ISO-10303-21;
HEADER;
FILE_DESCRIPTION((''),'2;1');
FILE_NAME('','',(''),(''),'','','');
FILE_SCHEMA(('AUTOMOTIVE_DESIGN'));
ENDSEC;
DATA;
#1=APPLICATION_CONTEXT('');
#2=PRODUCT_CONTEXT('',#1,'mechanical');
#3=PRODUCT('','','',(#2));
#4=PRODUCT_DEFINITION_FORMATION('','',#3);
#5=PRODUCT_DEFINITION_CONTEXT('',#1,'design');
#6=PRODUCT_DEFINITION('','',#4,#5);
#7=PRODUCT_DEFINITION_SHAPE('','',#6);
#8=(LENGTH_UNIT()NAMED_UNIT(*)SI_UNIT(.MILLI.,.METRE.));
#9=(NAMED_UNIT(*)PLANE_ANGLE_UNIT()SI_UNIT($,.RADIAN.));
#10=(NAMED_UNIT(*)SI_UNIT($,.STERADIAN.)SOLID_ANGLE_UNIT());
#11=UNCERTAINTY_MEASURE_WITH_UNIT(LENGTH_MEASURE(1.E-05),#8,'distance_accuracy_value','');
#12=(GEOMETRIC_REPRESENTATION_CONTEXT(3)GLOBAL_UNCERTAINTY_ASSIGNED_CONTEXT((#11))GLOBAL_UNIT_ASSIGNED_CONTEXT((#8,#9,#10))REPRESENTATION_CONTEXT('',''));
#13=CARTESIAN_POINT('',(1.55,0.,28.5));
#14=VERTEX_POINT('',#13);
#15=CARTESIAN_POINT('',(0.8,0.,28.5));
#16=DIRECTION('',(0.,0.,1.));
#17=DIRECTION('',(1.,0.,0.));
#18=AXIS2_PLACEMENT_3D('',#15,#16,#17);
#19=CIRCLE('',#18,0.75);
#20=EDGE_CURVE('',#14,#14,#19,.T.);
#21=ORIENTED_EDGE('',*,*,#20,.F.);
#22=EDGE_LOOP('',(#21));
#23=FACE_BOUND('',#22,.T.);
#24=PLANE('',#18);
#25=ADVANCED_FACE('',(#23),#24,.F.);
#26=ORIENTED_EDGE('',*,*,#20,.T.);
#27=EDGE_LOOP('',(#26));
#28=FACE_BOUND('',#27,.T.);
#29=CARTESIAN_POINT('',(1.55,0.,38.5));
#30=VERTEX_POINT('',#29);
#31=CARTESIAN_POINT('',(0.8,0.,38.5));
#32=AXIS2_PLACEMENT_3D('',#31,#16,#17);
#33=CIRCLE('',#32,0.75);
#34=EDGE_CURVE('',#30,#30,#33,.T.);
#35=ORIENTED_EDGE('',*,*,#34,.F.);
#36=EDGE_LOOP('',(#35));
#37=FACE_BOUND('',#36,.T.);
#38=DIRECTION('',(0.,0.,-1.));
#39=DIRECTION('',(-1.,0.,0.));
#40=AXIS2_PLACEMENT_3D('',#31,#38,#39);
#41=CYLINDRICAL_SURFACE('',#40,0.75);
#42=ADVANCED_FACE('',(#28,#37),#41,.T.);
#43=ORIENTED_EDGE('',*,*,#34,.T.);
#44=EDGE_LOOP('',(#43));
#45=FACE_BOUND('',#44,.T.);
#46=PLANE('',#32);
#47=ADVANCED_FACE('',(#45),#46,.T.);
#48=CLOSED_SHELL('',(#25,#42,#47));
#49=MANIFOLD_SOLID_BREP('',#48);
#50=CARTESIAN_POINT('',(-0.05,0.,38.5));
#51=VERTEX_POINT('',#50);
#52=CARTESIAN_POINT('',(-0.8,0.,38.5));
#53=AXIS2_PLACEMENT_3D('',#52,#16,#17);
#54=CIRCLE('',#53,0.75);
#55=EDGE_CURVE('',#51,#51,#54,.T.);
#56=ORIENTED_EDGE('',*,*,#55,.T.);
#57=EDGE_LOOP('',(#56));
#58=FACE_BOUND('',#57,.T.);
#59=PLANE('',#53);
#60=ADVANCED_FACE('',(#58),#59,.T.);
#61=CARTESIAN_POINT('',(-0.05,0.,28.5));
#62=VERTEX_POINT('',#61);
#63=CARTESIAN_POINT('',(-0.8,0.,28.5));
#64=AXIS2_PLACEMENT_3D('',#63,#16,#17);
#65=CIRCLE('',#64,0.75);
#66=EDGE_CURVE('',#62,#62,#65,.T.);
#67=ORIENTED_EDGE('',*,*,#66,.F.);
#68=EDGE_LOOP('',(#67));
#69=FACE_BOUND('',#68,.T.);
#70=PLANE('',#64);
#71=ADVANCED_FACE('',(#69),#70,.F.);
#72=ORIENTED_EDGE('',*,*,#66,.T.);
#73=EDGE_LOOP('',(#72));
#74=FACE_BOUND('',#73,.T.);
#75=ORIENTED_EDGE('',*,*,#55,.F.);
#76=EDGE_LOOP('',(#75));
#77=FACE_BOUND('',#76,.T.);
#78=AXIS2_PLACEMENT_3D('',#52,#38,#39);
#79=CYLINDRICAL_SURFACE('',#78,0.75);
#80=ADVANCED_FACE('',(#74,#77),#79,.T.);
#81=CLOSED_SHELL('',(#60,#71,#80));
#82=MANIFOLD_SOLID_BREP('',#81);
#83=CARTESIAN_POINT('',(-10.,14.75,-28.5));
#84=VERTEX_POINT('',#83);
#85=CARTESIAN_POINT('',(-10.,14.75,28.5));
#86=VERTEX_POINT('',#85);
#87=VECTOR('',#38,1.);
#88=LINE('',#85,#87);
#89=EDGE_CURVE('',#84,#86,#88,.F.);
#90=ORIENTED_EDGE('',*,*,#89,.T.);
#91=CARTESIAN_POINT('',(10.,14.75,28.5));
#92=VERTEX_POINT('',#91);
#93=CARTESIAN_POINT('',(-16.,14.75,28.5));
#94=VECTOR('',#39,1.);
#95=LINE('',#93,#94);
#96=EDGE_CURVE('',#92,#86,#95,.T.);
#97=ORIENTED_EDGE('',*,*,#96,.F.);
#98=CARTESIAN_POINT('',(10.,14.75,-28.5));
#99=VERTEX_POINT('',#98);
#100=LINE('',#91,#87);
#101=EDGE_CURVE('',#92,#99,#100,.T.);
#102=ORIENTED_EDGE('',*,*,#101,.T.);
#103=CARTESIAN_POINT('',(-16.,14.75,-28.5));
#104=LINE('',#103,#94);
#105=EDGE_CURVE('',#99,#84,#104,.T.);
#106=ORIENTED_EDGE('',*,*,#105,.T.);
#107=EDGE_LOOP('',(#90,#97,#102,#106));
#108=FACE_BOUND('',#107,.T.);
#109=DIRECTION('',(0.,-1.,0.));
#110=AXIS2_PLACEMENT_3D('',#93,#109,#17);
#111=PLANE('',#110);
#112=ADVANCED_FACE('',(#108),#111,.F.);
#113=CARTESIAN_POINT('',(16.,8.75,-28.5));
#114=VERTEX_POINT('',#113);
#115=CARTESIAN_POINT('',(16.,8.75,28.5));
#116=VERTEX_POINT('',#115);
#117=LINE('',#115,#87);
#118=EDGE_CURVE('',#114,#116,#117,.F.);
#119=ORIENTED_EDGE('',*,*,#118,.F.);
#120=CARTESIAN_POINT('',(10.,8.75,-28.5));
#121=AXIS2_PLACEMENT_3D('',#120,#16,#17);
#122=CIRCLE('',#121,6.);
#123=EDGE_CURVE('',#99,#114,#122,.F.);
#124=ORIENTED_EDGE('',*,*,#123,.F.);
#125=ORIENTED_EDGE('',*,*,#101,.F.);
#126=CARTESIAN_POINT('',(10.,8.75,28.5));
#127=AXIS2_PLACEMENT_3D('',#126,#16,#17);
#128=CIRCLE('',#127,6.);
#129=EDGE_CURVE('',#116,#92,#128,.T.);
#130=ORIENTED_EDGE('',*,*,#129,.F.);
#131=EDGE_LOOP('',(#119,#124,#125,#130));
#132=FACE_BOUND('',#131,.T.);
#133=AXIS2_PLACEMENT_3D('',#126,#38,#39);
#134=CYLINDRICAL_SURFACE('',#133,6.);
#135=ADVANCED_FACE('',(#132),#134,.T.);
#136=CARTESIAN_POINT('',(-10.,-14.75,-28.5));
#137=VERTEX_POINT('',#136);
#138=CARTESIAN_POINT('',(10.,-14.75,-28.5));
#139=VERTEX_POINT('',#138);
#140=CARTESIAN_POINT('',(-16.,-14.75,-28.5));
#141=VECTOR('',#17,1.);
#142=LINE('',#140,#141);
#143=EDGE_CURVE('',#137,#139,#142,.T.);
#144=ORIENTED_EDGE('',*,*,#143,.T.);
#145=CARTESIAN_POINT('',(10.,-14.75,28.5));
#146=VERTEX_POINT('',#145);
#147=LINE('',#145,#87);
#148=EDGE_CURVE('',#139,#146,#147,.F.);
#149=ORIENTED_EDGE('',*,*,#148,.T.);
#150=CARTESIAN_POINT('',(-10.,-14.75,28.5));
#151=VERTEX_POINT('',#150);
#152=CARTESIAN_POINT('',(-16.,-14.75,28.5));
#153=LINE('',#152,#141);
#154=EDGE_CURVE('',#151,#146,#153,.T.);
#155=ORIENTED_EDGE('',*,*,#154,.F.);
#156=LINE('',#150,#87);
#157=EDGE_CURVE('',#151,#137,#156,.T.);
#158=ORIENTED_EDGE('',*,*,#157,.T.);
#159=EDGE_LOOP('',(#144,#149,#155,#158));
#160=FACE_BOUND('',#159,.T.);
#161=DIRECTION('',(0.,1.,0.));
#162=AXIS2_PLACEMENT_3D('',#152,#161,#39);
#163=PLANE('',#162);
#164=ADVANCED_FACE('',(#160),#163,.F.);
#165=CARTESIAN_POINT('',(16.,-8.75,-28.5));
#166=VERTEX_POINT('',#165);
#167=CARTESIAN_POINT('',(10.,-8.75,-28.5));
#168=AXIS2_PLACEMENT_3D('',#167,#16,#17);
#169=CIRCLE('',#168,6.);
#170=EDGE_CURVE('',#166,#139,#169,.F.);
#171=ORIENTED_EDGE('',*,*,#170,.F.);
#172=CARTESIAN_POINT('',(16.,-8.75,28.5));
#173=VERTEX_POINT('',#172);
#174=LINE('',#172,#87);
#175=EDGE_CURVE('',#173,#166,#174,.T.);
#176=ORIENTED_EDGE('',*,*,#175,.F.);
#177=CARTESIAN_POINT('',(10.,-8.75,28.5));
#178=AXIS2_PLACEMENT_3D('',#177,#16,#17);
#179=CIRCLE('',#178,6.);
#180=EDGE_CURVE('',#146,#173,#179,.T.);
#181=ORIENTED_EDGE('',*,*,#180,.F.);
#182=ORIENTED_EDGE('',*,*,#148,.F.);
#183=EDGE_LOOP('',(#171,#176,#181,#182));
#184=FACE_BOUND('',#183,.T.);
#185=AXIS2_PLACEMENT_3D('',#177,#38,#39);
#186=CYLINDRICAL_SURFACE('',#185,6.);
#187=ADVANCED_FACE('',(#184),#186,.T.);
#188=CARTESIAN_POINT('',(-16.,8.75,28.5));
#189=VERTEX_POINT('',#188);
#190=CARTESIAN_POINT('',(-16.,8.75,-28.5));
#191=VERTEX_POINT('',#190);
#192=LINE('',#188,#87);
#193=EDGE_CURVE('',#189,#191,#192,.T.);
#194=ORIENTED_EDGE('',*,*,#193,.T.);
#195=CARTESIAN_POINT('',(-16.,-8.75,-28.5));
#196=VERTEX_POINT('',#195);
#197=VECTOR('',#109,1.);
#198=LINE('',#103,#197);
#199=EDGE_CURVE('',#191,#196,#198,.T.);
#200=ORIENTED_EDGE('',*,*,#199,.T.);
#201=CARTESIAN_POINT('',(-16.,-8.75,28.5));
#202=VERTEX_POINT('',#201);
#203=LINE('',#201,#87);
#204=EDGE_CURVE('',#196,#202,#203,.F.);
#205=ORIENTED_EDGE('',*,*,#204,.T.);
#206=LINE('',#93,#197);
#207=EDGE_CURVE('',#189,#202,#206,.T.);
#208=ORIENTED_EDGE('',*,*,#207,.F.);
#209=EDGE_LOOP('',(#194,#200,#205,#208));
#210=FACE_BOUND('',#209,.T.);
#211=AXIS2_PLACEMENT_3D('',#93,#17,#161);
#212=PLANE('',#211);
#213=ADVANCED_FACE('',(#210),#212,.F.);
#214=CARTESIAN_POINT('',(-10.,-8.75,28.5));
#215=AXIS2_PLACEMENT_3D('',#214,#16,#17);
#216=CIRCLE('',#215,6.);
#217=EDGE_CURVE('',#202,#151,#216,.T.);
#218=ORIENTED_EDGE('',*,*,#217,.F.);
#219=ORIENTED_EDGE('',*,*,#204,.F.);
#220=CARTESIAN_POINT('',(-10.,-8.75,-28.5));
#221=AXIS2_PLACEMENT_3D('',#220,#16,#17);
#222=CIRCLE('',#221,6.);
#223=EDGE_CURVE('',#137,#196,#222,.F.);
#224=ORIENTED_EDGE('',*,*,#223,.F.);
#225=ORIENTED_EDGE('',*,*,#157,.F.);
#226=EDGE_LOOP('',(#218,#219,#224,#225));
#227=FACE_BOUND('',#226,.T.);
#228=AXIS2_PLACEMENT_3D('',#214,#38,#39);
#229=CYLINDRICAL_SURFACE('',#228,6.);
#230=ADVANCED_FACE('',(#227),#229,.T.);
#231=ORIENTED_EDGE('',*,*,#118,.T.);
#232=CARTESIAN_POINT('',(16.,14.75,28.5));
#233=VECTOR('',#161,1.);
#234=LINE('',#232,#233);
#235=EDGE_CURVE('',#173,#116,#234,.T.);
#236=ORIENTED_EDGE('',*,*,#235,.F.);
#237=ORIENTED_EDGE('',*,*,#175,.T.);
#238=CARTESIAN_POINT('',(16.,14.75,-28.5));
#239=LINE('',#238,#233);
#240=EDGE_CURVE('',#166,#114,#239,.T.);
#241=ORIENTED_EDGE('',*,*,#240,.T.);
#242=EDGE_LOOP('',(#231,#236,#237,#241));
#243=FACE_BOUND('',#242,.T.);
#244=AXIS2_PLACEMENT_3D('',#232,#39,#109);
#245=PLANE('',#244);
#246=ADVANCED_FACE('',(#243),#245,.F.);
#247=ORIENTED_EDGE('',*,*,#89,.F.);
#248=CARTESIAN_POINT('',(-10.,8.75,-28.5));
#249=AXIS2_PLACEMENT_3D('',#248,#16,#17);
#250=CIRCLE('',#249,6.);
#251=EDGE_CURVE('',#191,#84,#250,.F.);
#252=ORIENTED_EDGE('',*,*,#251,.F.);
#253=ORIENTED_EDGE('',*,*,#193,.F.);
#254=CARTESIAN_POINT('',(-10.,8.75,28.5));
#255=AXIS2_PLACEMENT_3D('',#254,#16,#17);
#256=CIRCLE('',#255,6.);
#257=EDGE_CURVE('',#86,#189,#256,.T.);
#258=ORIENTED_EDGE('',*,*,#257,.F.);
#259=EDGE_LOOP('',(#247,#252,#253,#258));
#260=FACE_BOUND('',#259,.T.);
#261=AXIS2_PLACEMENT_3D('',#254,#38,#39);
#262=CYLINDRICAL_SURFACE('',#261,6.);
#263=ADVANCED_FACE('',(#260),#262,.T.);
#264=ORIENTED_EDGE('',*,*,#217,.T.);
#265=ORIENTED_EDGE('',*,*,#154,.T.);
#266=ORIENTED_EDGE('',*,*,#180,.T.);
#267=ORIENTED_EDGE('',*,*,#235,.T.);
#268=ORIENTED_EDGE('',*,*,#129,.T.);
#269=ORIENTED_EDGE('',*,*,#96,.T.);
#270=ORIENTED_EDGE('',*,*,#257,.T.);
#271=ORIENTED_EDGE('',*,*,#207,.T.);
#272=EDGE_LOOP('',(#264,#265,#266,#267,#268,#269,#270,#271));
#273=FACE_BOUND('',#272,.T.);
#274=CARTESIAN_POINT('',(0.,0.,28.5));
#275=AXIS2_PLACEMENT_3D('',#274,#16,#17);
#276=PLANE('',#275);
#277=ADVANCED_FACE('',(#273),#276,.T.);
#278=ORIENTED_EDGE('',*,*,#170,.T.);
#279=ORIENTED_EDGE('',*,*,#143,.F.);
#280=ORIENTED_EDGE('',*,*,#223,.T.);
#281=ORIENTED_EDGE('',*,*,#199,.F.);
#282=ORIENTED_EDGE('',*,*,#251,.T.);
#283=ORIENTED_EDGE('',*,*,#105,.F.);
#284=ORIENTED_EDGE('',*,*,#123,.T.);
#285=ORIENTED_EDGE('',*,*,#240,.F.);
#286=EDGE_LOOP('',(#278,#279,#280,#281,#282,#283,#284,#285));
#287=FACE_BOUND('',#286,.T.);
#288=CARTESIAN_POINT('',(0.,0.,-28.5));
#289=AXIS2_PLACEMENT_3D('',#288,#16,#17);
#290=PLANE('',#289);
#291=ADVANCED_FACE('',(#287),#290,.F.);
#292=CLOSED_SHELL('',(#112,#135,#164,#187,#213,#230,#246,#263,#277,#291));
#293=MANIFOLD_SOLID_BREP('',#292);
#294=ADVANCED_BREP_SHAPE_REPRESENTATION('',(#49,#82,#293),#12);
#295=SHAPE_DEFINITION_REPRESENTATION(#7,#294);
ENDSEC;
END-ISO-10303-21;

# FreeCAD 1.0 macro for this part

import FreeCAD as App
import Part
import Sketcher
Q = App.Units.Quantity


def edges_at(feature, points):
    """Names of the edges that pass closest to the given points."""
    edges = feature.Shape.Edges
    near = lambda p: min(range(len(edges)), key=lambda i: edges[i].distToShape(Part.Vertex(*p))[0])
    return sorted({f"Edge{near(p) + 1}" for p in points})


def add_polygon(sketch, points):
    """Adds a closed chain of lines whose ends are joined by coincident constraints."""
    first, n = sketch.GeometryCount, len(points)
    for a, b in zip(points, points[1:] + points[:1]):
        sketch.addGeometry(Part.LineSegment(App.Vector(*a, 0), App.Vector(*b, 0)), False)
    for i in range(n):
        sketch.addConstraint(Sketcher.Constraint("Coincident", first + i, 2, first + (i + 1) % n, 1))

doc = App.newDocument("Part")
body = doc.addObject("PartDesign::Body", "Body")

sketch1 = body.newObject("Sketcher::SketchObject", "Sketch")
sketch1.AttachmentSupport = (doc.getObject("XY_Plane"), [""])
sketch1.MapMode = "FlatFace"
add_polygon(sketch1, [(-16, 15), (-16, -15), (16, -15), (16, 15)])
sketch1.addConstraint([
    Sketcher.Constraint("Vertical", 0),
    Sketcher.Constraint("Horizontal", 1),
    Sketcher.Constraint("Vertical", 2),
    Sketcher.Constraint("Horizontal", 3),
    Sketcher.Constraint("Symmetric", 0, 2, 2, 2, -1, 1),
    Sketcher.Constraint("DistanceX", 1, 1, 1, 2, Q("32 mm")),
    Sketcher.Constraint("DistanceY", 0, 2, 0, 1, Q("29.5 mm")),
])
pad1 = body.newObject("PartDesign::Pad", "Pad")
pad1.Profile = sketch1
pad1.Length = 57
pad1.Midplane = True
doc.recompute()

fillet = body.newObject("PartDesign::Fillet", "Fillet")
fillet.Base = (pad1, edges_at(pad1, [
    (-16, 14.75, 0),
    (16, 14.75, 0),
    (16, -14.75, 0),
    (-16, -14.75, 0),
]))
fillet.Radius = 6
body2 = doc.addObject("PartDesign::Body", "Body001")

sketch2 = body2.newObject("Sketcher::SketchObject", "Sketch001")
sketch2.AttachmentSupport = (doc.getObject("XY_Plane001"), [""])
sketch2.MapMode = "FlatFace"
sketch2.AttachmentOffset = App.Placement(App.Vector(0, 0, 28.5), App.Rotation())
sketch2.addGeometry(Part.Circle(App.Vector(-0.8, 0, 0), App.Vector(0, 0, 1), 0.8), False)
sketch2.addConstraint([
    Sketcher.Constraint("PointOnObject", 0, 3, -1),
    Sketcher.Constraint("Diameter", 0, Q("1.5 mm")),
    Sketcher.Constraint("DistanceX", 0, 3, -1, 1, Q("0.8 mm")),
])
pad2 = body2.newObject("PartDesign::Pad", "Pad001")
pad2.Profile = sketch2
pad2.Length = 10
body3 = doc.addObject("PartDesign::Body", "Body002")

sketch3 = body3.newObject("Sketcher::SketchObject", "Sketch002")
sketch3.AttachmentSupport = (doc.getObject("XY_Plane002"), [""])
sketch3.MapMode = "FlatFace"
sketch3.AttachmentOffset = App.Placement(App.Vector(0, 0, 28.5), App.Rotation())
sketch3.addGeometry(Part.Circle(App.Vector(0.8, 0, 0), App.Vector(0, 0, 1), 0.8), False)
sketch3.addConstraint([
    Sketcher.Constraint("PointOnObject", 0, 3, -1),
    Sketcher.Constraint("Diameter", 0, Q("1.5 mm")),
    Sketcher.Constraint("DistanceX", -1, 1, 0, 3, Q("0.8 mm")),
])
pad3 = body3.newObject("PartDesign::Pad", "Pad002")
pad3.Profile = sketch3
pad3.Length = 10

doc.recompute()
